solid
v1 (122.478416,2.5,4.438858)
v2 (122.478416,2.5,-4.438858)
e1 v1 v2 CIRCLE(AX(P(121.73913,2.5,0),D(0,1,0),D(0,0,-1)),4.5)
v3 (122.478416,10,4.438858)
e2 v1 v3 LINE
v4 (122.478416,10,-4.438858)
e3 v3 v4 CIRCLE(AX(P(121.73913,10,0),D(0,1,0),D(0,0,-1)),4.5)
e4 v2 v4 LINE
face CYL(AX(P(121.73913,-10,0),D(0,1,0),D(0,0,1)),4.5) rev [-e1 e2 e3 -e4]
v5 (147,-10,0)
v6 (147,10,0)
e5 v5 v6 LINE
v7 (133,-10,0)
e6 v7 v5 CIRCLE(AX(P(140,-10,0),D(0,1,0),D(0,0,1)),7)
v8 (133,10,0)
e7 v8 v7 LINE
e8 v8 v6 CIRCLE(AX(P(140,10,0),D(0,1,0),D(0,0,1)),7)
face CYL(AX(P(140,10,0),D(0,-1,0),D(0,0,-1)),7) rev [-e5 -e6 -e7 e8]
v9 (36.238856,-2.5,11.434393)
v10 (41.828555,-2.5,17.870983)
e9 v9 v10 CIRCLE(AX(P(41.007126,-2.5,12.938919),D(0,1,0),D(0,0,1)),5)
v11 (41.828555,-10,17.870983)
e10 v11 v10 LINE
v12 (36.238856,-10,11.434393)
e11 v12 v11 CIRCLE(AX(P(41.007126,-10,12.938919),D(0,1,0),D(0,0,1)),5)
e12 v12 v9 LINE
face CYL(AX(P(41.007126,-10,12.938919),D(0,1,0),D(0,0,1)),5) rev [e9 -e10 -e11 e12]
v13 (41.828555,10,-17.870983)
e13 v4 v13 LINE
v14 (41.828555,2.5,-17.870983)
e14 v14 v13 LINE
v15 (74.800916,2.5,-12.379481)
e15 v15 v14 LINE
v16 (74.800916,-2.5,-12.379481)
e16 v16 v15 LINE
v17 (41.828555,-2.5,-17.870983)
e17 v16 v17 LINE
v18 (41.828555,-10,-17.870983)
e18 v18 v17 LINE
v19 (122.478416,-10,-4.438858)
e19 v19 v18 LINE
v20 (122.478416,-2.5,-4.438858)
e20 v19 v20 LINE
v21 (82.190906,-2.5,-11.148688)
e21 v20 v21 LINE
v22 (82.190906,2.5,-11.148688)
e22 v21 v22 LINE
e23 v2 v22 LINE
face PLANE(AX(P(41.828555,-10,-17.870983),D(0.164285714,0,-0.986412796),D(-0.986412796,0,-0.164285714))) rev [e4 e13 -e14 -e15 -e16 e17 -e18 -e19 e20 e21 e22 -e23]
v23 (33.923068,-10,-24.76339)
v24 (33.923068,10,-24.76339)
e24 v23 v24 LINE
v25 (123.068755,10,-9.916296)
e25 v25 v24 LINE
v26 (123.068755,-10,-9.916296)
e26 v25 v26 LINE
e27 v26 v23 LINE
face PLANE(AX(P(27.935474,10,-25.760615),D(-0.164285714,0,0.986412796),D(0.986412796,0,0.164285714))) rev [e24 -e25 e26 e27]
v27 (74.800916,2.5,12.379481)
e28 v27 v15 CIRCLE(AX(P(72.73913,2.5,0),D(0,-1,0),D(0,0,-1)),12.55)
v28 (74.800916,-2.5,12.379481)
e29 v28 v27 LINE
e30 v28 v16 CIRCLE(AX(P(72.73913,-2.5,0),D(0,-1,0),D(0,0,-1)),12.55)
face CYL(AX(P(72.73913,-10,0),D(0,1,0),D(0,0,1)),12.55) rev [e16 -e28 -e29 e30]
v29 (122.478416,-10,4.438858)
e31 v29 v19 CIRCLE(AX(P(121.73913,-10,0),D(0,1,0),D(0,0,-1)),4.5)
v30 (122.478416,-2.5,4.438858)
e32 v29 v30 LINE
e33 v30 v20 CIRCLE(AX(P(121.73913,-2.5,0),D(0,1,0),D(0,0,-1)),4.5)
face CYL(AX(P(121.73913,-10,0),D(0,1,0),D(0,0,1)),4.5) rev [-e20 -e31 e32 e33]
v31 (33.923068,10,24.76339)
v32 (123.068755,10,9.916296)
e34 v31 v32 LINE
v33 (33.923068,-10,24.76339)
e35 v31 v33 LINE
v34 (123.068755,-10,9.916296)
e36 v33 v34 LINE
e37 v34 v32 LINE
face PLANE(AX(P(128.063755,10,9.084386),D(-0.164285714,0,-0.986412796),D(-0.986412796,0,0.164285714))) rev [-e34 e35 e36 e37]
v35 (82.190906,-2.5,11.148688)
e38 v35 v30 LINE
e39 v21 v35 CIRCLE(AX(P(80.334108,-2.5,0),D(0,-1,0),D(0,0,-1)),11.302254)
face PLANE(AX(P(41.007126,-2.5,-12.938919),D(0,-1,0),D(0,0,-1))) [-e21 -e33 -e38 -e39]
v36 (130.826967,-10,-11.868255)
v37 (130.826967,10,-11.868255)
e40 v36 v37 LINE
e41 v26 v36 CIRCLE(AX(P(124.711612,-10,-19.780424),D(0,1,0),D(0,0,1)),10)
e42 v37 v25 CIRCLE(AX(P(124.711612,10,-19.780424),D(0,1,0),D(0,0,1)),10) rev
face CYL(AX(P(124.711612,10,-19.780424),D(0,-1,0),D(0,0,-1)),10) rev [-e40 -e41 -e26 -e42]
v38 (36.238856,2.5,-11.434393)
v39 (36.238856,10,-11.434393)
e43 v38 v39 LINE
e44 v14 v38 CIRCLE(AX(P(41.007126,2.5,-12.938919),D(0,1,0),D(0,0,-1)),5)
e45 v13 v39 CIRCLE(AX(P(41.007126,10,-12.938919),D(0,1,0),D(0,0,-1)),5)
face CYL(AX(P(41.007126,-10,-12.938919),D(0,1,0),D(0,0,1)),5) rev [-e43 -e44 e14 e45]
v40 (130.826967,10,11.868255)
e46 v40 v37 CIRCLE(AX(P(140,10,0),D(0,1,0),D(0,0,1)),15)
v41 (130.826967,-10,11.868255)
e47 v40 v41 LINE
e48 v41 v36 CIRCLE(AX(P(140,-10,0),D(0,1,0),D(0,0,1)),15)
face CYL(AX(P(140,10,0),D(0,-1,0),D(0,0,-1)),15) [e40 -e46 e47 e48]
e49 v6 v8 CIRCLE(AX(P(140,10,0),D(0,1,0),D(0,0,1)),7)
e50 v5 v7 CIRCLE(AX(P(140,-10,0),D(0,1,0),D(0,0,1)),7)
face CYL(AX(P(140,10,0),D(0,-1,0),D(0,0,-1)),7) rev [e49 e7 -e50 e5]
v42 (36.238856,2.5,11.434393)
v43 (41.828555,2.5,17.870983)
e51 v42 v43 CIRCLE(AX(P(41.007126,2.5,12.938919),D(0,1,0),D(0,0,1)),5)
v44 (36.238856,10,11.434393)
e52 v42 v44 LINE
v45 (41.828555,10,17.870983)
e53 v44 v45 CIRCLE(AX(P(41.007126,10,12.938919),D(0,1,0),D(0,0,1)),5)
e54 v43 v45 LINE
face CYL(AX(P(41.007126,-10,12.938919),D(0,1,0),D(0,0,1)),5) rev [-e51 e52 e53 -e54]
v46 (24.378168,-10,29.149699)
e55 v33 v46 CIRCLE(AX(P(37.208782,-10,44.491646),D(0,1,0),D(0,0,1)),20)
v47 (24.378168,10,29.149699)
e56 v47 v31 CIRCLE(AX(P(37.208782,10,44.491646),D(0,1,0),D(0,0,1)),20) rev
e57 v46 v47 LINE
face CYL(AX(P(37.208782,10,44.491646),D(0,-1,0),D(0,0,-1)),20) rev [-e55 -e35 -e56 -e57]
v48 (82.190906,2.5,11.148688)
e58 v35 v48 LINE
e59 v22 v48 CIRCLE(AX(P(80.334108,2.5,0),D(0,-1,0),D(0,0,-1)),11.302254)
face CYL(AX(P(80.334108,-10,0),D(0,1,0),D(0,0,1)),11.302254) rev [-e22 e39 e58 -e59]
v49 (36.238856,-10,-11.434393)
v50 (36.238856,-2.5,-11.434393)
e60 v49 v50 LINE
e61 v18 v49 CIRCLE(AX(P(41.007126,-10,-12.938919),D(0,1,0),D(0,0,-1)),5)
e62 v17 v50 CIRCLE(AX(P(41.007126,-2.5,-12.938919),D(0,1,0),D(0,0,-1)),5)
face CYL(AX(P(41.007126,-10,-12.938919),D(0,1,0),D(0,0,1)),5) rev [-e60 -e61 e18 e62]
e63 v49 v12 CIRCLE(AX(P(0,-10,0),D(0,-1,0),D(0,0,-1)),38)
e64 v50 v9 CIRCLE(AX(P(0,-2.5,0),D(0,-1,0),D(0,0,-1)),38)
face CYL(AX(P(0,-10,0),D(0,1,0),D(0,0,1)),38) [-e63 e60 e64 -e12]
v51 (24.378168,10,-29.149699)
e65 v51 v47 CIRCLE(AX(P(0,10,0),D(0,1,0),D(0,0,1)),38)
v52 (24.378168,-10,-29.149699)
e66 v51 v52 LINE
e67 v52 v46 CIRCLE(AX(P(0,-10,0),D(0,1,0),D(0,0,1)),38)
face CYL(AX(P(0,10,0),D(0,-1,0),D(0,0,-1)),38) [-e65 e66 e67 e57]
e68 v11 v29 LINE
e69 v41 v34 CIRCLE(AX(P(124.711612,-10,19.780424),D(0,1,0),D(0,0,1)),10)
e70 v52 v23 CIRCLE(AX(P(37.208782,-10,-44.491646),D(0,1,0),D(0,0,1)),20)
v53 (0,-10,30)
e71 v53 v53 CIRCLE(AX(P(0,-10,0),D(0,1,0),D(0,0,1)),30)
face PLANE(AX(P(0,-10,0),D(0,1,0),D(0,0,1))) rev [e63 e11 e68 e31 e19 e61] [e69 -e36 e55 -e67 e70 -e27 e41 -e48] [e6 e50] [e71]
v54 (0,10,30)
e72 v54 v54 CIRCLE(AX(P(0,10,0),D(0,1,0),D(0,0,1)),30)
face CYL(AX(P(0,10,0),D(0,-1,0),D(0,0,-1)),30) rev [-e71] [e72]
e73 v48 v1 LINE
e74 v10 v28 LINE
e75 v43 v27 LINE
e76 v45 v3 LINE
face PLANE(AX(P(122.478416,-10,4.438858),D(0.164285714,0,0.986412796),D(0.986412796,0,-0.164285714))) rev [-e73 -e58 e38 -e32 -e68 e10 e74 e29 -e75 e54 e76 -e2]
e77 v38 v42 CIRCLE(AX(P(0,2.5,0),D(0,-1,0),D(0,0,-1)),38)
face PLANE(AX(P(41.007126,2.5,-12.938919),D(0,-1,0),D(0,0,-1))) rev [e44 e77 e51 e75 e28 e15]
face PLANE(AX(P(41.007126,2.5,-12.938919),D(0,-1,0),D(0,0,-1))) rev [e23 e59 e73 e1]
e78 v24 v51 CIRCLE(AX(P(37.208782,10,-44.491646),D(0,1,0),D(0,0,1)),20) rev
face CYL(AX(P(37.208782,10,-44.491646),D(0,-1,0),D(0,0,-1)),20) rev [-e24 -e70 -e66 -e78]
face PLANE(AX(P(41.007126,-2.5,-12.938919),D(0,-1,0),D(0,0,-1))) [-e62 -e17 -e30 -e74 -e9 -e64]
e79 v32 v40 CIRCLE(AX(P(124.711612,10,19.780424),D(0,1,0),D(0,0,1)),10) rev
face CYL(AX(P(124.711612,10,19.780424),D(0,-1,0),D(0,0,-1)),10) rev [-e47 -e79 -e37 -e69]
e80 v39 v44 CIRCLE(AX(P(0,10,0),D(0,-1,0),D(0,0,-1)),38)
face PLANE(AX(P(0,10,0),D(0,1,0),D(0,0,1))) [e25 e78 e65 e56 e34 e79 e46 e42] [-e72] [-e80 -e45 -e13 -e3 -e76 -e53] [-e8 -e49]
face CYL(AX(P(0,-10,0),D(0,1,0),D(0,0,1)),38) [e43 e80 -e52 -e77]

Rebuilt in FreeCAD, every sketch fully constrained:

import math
import FreeCAD as App
import Part
import Sketcher

V = App.Vector
Q = App.Units.Quantity


def edges_at(feature, points):
    """Names of the edges that pass closest to the given points."""
    edges = feature.Shape.Edges
    near = lambda p: min(range(len(edges)), key=lambda i: edges[i].distToShape(Part.Vertex(*p))[0])
    return sorted({f"Edge{near(p) + 1}" for p in points})

doc = App.newDocument("Part")
body = doc.addObject("PartDesign::Body", "Body")

# Sketch on XZ plane
sketch1 = body.newObject("Sketcher::SketchObject", "Sketch")
sketch1.AttachmentSupport = (doc.getObject("XZ_Plane"), [""])
sketch1.MapMode = "FlatFace"
sketch1.addGeometry([
    Part.LineSegment(V(128, -9, 0), V(28, -26, 0)),  # 0
    Part.ArcOfCircle(Part.Circle(V(0, 0, 0), V(0, 0, 1), 38), math.radians(43), math.radians(317)),  # 1
    Part.LineSegment(V(28, 26, 0), V(128, 9, 0)),  # 2
    Part.ArcOfCircle(Part.Circle(V(140, 0, 0), V(0, 0, 1), 15), math.radians(-143), math.radians(143)),  # 3
    Part.Circle(V(140, 0, 0), V(0, 0, 1), 7),  # 4
    Part.Circle(V(0, 0, 0), V(0, 0, 1), 30),  # 5
], False)
sketch1.addConstraint([
    Sketcher.Constraint("Coincident", 0, 2, 1, 2),
    Sketcher.Constraint("Coincident", 1, 1, 2, 1),
    Sketcher.Constraint("Coincident", 2, 2, 3, 2),
    Sketcher.Constraint("Coincident", 3, 1, 0, 1),
    Sketcher.Constraint("Coincident", 1, 3, -1, 1),
    Sketcher.Constraint("Coincident", 5, 3, -1, 1),
    Sketcher.Constraint("Coincident", 4, 3, 3, 3),
    Sketcher.Constraint("Symmetric", 2, 2, 3, 1, -1),
    Sketcher.Constraint("Vertical", 0, 2, 1, 1),
    Sketcher.Constraint("Diameter", 4, Q("14 mm")),
    Sketcher.Constraint("Diameter", 5, Q("60 mm")),
    Sketcher.Constraint("Radius", 1, Q("38 mm")),
    Sketcher.Constraint("Radius", 3, Q("15 mm")),
    Sketcher.Constraint("DistanceX", -1, 1, 3, 3, Q("140 mm")),
    Sketcher.Constraint("DistanceY", 0, 2, 2, 2, Q("34.845001 mm")),
    Sketcher.Constraint("DistanceY", 0, 2, 1, 1, Q("51.521231 mm")),
])
pad1 = body.newObject("PartDesign::Pad", "Pad")
pad1.Profile = sketch1
pad1.Length = 20
pad1.Midplane = True
doc.recompute()

fillet = body.newObject("PartDesign::Fillet", "Fillet")
fillet.Base = (pad1, edges_at(pad1, [(128.064, 0, -9.084), (128.064, 0, 9.084)]))
fillet.Radius = 10
doc.recompute()

fillet2 = body.newObject("PartDesign::Fillet", "Fillet001")
fillet2.Base = (fillet, edges_at(fillet, [(27.935, 0, -25.761), (27.935, 0, 25.761)]))
fillet2.Radius = 20

# Sketch on XZ plane
sketch2 = body.newObject("Sketcher::SketchObject", "Sketch001")
sketch2.AttachmentSupport = (doc.getObject("XZ_Plane"), [""])
sketch2.MapMode = "FlatFace"
sketch2.AttachmentOffset = App.Placement(V(0, 0, -10), App.Rotation())
sketch2.addGeometry([
    Part.LineSegment(V(122.5, -4.4, 0), V(41.8, -17.9, 0)),  # 0
    Part.ArcOfCircle(Part.Circle(V(41, -12.9, 0), V(0, 0, 1), 5), math.radians(162), math.radians(279)),  # 1
    Part.ArcOfCircle(Part.Circle(V(0, 0, 0), V(0, 0, 1), 38), math.radians(-18), math.radians(18)),  # 2
    Part.ArcOfCircle(Part.Circle(V(41, 12.9, 0), V(0, 0, 1), 5), math.radians(81), math.radians(198)),  # 3
    Part.LineSegment(V(41.8, 17.9, 0), V(122.5, 4.4, 0)),  # 4
    Part.ArcOfCircle(Part.Circle(V(121.7, 0, 0), V(0, 0, 1), 4.5), math.radians(-81), math.radians(81)),  # 5
], False)
sketch2.addConstraint([
    Sketcher.Constraint("Tangent", 0, 2, 1, 2),
    Sketcher.Constraint("Tangent", 1, 1, 2, 1),
    Sketcher.Constraint("Tangent", 2, 2, 3, 2),
    Sketcher.Constraint("Tangent", 3, 1, 4, 1),
    Sketcher.Constraint("Tangent", 4, 2, 5, 2),
    Sketcher.Constraint("Tangent", 5, 1, 0, 1),
    Sketcher.Constraint("Coincident", 2, 3, -1, 1),
    Sketcher.Constraint("Equal", 1, 3),
    Sketcher.Constraint("Symmetric", 0, 2, 3, 1, -1),
    Sketcher.Constraint("Radius", 1, Q("5 mm")),
    Sketcher.Constraint("Radius", 2, Q("38 mm")),
    Sketcher.Constraint("Radius", 5, Q("4.5 mm")),
    Sketcher.Constraint("DistanceY", 0, 2, 3, 3, Q("30.809901 mm")),
    Sketcher.Constraint("DistanceX", 1, 1, 0, 2, Q("5.589699 mm")),
])
pocket1 = body.newObject("PartDesign::Pocket", "Pocket")
pocket1.Profile = sketch2
pocket1.Type = "ThroughAll"
pocket1.Reversed = True

# Sketch on XZ plane
sketch3 = body.newObject("Sketcher::SketchObject", "Sketch002")
sketch3.AttachmentSupport = (doc.getObject("XZ_Plane"), [""])
sketch3.MapMode = "FlatFace"
sketch3.addGeometry([
    Part.LineSegment(V(122.5, -4.4, 0), V(41.8, -17.9, 0)),  # 0
    Part.ArcOfCircle(Part.Circle(V(41, -12.9, 0), V(0, 0, 1), 5), math.radians(162), math.radians(279)),  # 1
    Part.ArcOfCircle(Part.Circle(V(0, 0, 0), V(0, 0, 1), 38), math.radians(-18), math.radians(18)),  # 2
    Part.ArcOfCircle(Part.Circle(V(41, 12.9, 0), V(0, 0, 1), 5), math.radians(81), math.radians(198)),  # 3
    Part.LineSegment(V(41.8, 17.9, 0), V(122.5, 4.4, 0)),  # 4
    Part.ArcOfCircle(Part.Circle(V(121.7, 0, 0), V(0, 0, 1), 4.5), math.radians(-81), math.radians(81)),  # 5
], False)
sketch3.addConstraint([
    Sketcher.Constraint("Tangent", 0, 2, 1, 2),
    Sketcher.Constraint("Tangent", 1, 1, 2, 1),
    Sketcher.Constraint("Tangent", 2, 2, 3, 2),
    Sketcher.Constraint("Tangent", 3, 1, 4, 1),
    Sketcher.Constraint("Tangent", 4, 2, 5, 2),
    Sketcher.Constraint("Tangent", 5, 1, 0, 1),
    Sketcher.Constraint("Coincident", 2, 3, -1, 1),
    Sketcher.Constraint("Equal", 1, 3),
    Sketcher.Constraint("Symmetric", 0, 2, 3, 1, -1),
    Sketcher.Constraint("Radius", 1, Q("5 mm")),
    Sketcher.Constraint("Radius", 2, Q("38 mm")),
    Sketcher.Constraint("Radius", 5, Q("4.5 mm")),
    Sketcher.Constraint("DistanceY", 0, 2, 3, 3, Q("30.809901 mm")),
    Sketcher.Constraint("DistanceX", 1, 1, 0, 2, Q("5.589699 mm")),
])
pad2 = body.newObject("PartDesign::Pad", "Pad001")
pad2.Profile = sketch3
pad2.Length = 5
pad2.Midplane = True

# Sketch on XZ plane
sketch4 = body.newObject("Sketcher::SketchObject", "Sketch003")
sketch4.AttachmentSupport = (doc.getObject("XZ_Plane"), [""])
sketch4.MapMode = "FlatFace"
sketch4.AttachmentOffset = App.Placement(V(0, 0, -10), App.Rotation())
sketch4.addGeometry([
    Part.LineSegment(V(82, -11, 0), V(75, -12, 0)),
    Part.ArcOfCircle(Part.Circle(V(73, 0, 0), V(0, 0, 1), 13), math.radians(81), math.radians(279)),
    Part.LineSegment(V(75, 12, 0), V(82, 11, 0)),
    Part.ArcOfCircle(Part.Circle(V(80, 0, 0), V(0, 0, 1), 11), math.radians(-81), math.radians(81)),
], False)
sketch4.addConstraint([
    Sketcher.Constraint("Tangent", 0, 2, 1, 2),
    Sketcher.Constraint("Tangent", 1, 1, 2, 1),
    Sketcher.Constraint("Tangent", 2, 2, 3, 2),
    Sketcher.Constraint("Tangent", 3, 1, 0, 1),
    Sketcher.Constraint("Symmetric", 0, 2, 1, 1, -1),
    Sketcher.Constraint("Radius", 1, Q("12.55 mm")),
    Sketcher.Constraint("Radius", 3, Q("11.302254 mm")),
    Sketcher.Constraint("DistanceX", 3, 3, 2, 2, Q("1.856799 mm")),
    Sketcher.Constraint("DistanceX", -1, 1, 1, 3, Q("72.73913 mm")),
])
pocket2 = body.newObject("PartDesign::Pocket", "Pocket001")
pocket2.Profile = sketch4
pocket2.Type = "ThroughAll"
pocket2.Reversed = True

doc.recompute()
